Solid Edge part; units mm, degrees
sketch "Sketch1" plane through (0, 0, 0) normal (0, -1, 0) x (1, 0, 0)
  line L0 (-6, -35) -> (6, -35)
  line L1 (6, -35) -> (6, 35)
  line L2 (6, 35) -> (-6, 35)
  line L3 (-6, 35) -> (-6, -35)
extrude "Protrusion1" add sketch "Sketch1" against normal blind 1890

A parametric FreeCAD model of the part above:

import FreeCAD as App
import Part
import Sketcher

V = App.Vector
Q = App.Units.Quantity

doc = App.newDocument("Part")
params = doc.addObject("Spreadsheet::Sheet", "Params")
for row, (alias, value) in enumerate([
    ("sketch1_width", "12 mm"),
    ("sketch1_height", "70 mm"),
    ("pad1_length", "1890 mm"),
], start=1):
    params.set(f"A{row}", alias)
    params.set(f"B{row}", "=" + value)
    params.setAlias(f"B{row}", alias)

body = doc.addObject("PartDesign::Body", "Body")

sketch1 = body.newObject("Sketcher::SketchObject", "Sketch")
sketch1.AttachmentSupport = (doc.getObject("XZ_Plane"), [""])
sketch1.MapMode = "FlatFace"
sketch1.addGeometry([
    Part.LineSegment(V(-6, 35, 0), V(-6, -35, 0)),
    Part.LineSegment(V(-6, -35, 0), V(6, -35, 0)),
    Part.LineSegment(V(6, -35, 0), V(6, 35, 0)),
    Part.LineSegment(V(6, 35, 0), V(-6, 35, 0)),
], False)
sketch1.addConstraint([
    Sketcher.Constraint("Coincident", 0, 2, 1, 1),
    Sketcher.Constraint("Coincident", 1, 2, 2, 1),
    Sketcher.Constraint("Coincident", 2, 2, 3, 1),
    Sketcher.Constraint("Coincident", 3, 2, 0, 1),
    Sketcher.Constraint("Vertical", 0),
    Sketcher.Constraint("Horizontal", 1),
    Sketcher.Constraint("Vertical", 2),
    Sketcher.Constraint("Horizontal", 3),
    Sketcher.Constraint("Symmetric", 0, 2, 2, 2, -1, 1),
    Sketcher.Constraint("DistanceX", 1, 1, 1, 2, Q("12 mm")),
    Sketcher.Constraint("DistanceY", 0, 2, 0, 1, Q("70 mm")),
])
sketch1.setExpression("Constraints[9]", "Params.sketch1_width")
sketch1.setExpression("Constraints[10]", "Params.sketch1_height")
pad1 = body.newObject("PartDesign::Pad", "Pad")
pad1.Profile = sketch1
pad1.setExpression("Length", "Params.pad1_length")
pad1.Reversed = True

doc.recompute()
